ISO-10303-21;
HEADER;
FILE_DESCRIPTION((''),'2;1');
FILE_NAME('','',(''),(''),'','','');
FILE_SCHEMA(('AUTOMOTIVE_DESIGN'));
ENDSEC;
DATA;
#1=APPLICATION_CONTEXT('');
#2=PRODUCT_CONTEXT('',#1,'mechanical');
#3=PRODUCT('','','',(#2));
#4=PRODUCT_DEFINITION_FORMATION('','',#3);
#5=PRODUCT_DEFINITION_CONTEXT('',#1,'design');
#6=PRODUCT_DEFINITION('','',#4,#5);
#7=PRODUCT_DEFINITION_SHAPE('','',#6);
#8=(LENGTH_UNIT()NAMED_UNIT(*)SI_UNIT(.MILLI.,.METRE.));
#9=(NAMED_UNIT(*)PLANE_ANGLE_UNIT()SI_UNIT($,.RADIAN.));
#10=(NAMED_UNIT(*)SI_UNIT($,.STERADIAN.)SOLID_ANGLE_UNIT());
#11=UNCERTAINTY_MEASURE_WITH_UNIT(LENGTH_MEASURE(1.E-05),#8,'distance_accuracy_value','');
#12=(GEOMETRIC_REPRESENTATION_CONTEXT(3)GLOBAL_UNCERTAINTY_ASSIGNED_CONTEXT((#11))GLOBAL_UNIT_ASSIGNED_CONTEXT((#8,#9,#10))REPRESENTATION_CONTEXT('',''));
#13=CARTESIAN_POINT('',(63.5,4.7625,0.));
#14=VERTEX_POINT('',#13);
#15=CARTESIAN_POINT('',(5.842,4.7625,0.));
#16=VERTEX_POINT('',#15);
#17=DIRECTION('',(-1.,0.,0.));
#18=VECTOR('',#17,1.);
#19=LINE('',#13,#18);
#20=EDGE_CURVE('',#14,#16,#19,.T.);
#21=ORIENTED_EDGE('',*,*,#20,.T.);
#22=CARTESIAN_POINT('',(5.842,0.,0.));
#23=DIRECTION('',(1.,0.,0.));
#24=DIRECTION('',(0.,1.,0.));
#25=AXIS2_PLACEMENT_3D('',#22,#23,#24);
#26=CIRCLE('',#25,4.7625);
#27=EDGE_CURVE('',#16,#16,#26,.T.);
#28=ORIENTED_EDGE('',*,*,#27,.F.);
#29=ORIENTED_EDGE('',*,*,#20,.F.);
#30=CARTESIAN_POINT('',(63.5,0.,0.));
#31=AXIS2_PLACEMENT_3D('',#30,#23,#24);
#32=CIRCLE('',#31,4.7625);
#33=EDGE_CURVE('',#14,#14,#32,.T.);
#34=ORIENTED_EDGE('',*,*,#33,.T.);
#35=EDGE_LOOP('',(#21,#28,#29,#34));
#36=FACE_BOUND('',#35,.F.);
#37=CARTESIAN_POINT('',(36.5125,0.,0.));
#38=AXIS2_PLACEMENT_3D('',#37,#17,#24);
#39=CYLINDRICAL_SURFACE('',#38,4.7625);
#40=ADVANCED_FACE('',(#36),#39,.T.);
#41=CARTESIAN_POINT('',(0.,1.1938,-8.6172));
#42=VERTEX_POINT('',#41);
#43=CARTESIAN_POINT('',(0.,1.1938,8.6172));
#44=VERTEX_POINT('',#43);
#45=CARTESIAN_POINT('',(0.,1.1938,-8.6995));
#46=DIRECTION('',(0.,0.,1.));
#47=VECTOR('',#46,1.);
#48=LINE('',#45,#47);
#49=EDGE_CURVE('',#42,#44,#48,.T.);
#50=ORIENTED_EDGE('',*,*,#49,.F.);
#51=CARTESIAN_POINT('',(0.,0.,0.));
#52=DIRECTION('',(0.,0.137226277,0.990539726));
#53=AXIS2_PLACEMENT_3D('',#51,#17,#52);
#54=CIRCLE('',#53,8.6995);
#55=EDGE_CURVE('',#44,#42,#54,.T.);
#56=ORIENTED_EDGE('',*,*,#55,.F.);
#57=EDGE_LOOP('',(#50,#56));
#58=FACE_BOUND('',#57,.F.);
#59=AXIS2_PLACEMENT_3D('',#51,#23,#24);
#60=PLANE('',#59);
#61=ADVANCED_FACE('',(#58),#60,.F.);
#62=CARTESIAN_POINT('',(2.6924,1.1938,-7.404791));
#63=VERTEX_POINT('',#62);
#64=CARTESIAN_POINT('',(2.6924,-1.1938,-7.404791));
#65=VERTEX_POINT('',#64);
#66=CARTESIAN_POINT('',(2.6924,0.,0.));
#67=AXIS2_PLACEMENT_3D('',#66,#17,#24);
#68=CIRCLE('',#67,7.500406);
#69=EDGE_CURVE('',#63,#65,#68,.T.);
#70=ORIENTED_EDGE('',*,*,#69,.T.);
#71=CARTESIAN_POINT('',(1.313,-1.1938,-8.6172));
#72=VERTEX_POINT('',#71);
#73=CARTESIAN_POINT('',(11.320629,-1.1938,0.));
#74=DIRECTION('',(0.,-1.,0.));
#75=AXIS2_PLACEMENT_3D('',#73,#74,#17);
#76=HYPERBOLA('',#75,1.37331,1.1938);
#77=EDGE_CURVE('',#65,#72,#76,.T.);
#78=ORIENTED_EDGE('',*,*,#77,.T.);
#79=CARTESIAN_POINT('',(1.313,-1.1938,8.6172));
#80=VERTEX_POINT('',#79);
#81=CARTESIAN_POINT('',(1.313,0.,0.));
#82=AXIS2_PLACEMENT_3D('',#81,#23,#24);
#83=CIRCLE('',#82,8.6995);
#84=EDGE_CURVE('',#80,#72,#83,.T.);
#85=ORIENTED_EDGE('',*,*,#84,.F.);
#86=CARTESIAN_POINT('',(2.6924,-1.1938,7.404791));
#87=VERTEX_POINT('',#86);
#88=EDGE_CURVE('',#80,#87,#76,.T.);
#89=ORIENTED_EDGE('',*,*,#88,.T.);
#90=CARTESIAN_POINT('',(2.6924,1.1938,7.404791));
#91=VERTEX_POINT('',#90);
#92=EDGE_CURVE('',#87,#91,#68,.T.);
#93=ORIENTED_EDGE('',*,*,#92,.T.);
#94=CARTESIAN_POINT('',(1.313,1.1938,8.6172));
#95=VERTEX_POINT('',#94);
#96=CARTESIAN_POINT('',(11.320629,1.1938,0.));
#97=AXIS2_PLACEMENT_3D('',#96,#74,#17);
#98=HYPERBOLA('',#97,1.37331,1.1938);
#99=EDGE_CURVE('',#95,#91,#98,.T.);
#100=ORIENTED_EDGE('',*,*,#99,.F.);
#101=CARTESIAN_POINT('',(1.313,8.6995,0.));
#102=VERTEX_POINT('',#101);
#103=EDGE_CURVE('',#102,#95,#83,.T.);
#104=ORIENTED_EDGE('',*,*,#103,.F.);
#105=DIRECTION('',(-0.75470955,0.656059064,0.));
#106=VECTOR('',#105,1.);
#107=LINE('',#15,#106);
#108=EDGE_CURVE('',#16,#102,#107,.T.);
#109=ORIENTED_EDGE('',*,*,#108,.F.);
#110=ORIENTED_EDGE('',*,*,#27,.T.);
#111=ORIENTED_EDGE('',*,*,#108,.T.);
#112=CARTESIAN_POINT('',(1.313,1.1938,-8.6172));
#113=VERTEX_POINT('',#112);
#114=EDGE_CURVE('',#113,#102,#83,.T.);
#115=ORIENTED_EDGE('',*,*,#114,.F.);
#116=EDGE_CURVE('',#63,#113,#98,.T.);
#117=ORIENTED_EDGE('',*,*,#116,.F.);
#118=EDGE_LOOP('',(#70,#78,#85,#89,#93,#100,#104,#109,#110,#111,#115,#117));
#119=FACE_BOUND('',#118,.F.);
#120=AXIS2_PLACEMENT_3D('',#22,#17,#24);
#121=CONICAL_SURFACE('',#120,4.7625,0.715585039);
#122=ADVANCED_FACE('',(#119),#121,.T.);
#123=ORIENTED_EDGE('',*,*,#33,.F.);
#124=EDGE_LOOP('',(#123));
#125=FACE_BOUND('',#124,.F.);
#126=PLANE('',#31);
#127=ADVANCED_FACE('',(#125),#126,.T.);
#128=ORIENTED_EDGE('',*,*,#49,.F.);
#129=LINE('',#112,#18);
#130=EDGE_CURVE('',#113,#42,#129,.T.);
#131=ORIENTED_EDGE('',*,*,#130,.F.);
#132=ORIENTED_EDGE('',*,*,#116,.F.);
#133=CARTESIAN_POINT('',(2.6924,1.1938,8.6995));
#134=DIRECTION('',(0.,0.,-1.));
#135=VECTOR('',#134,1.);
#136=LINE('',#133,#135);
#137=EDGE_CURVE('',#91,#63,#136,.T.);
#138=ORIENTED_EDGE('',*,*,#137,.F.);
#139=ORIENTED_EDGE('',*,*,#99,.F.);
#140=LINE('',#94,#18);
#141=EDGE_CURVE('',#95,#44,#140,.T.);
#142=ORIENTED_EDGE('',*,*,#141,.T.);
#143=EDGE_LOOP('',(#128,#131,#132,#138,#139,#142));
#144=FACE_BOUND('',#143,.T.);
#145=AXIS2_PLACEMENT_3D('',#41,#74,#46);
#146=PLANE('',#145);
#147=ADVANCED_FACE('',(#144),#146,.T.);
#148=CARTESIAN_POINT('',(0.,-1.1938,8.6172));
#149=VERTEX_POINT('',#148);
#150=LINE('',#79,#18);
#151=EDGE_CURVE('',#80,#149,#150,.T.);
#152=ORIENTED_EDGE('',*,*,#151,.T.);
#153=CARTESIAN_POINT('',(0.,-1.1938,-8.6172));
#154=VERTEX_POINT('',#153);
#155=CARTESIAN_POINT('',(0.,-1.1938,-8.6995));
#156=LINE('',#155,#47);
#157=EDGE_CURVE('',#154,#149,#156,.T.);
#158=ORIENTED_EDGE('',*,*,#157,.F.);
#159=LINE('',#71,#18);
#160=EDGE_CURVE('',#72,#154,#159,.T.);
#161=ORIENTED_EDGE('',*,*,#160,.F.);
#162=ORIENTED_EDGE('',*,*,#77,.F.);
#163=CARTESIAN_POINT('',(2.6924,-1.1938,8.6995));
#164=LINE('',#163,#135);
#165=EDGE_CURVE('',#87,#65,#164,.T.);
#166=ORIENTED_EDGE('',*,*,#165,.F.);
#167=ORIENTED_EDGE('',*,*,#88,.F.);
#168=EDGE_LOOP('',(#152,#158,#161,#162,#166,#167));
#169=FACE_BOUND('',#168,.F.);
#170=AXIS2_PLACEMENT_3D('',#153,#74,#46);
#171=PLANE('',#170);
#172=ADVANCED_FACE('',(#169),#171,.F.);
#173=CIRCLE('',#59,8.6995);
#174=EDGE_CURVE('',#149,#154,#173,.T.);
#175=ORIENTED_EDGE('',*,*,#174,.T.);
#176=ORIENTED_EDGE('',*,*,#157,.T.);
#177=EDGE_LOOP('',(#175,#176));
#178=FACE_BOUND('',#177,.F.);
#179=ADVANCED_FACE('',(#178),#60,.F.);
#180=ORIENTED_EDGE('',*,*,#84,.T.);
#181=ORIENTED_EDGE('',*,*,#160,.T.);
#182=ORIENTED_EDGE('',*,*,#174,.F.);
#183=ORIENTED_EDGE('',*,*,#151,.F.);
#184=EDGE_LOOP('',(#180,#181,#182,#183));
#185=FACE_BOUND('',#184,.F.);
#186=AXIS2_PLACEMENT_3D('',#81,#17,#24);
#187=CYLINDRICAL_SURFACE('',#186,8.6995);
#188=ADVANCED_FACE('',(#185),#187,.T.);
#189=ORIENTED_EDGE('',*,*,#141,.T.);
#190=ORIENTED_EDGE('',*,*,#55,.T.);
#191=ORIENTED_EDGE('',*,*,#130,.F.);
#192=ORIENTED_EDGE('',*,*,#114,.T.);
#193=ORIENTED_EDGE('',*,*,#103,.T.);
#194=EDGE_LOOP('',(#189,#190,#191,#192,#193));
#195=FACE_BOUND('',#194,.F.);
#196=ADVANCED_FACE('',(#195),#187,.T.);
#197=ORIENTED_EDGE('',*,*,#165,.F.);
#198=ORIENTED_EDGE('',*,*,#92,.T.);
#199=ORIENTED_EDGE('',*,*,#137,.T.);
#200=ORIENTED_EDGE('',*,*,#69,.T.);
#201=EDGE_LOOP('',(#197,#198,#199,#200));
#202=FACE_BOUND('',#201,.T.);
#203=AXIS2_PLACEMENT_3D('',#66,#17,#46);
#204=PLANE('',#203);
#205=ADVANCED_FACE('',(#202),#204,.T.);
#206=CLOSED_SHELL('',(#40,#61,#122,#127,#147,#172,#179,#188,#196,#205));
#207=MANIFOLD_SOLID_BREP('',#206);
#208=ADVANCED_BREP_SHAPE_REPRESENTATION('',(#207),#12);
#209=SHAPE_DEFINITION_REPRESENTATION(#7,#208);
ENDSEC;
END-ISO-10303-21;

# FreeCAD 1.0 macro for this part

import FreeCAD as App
import Part
import Sketcher
Q = App.Units.Quantity

doc = App.newDocument("Part")
body = doc.addObject("PartDesign::Body", "Body")

sketch1 = doc.addObject("Sketcher::SketchObject", "Sketch")
body.addObject(sketch1)
sketch1.AttachmentSupport = (doc.XY_Plane, [""])
sketch1.MapMode = "FlatFace"
sketch1.addGeometry([
    Part.LineSegment(App.Vector(0, 8.7, 0), App.Vector(0, 0, 0)),
    Part.LineSegment(App.Vector(0, 0, 0), App.Vector(63.5, 0, 0)),
    Part.LineSegment(App.Vector(63.5, 0, 0), App.Vector(63.5, 4.8, 0)),
    Part.LineSegment(App.Vector(63.5, 4.8, 0), App.Vector(5.8, 4.8, 0)),
    Part.LineSegment(App.Vector(5.8, 4.8, 0), App.Vector(1.3, 8.7, 0)),
    Part.LineSegment(App.Vector(1.3, 8.7, 0), App.Vector(0, 8.7, 0)),
], False)
sketch1.addConstraint([
    Sketcher.Constraint("Coincident", 0, 2, 1, 1),
    Sketcher.Constraint("Coincident", 1, 2, 2, 1),
    Sketcher.Constraint("Coincident", 2, 2, 3, 1),
    Sketcher.Constraint("Coincident", 3, 2, 4, 1),
    Sketcher.Constraint("Coincident", 4, 2, 5, 1),
    Sketcher.Constraint("Coincident", 5, 2, 0, 1),
    Sketcher.Constraint("Vertical", 0),
    Sketcher.Constraint("Horizontal", 1),
    Sketcher.Constraint("Vertical", 2),
    Sketcher.Constraint("Horizontal", 3),
    Sketcher.Constraint("Horizontal", 5),
    Sketcher.Constraint("Coincident", 0, 2, -1, 1),
    Sketcher.Constraint("DistanceX", 1, 1, 1, 2, Q("2.5 in")),
    Sketcher.Constraint("DistanceX", -1, 1, 3, 2, Q("0.23 in")),
    Sketcher.Constraint("Angle", 4, Q("139 deg")),
    Sketcher.Constraint("DistanceY", 2, 1, 2, 2, Q("0.1875 in")),
    Sketcher.Constraint("DistanceX", 5, 2, 5, 1, Q("0.0517 in")),
])
revolution = doc.addObject("PartDesign::Revolution", "Revolution")
body.addObject(revolution)
revolution.Profile = sketch1
revolution.ReferenceAxis = (sketch1, ["H_Axis"])
revolution.Angle = 360

sketch2 = doc.addObject("Sketcher::SketchObject", "Sketch001")
body.addObject(sketch2)
sketch2.AttachmentSupport = (doc.YZ_Plane, [""])
sketch2.MapMode = "FlatFace"
sketch2.addGeometry([
    Part.LineSegment(App.Vector(1.2, -8.7, 0), App.Vector(-1.2, -8.7, 0)),
    Part.LineSegment(App.Vector(-1.2, -8.7, 0), App.Vector(-1.2, 8.7, 0)),
    Part.LineSegment(App.Vector(-1.2, 8.7, 0), App.Vector(1.2, 8.7, 0)),
    Part.LineSegment(App.Vector(1.2, 8.7, 0), App.Vector(1.2, -8.7, 0)),
], False)
sketch2.addConstraint([
    Sketcher.Constraint("Coincident", 0, 2, 1, 1),
    Sketcher.Constraint("Coincident", 1, 2, 2, 1),
    Sketcher.Constraint("Coincident", 2, 2, 3, 1),
    Sketcher.Constraint("Coincident", 3, 2, 0, 1),
    Sketcher.Constraint("Horizontal", 0),
    Sketcher.Constraint("Vertical", 1),
    Sketcher.Constraint("Horizontal", 2),
    Sketcher.Constraint("Vertical", 3),
    Sketcher.Constraint("Symmetric", 0, 2, 2, 2, -1, 1),
    Sketcher.Constraint("DistanceX", 0, 2, 0, 1, Q("0.094 in")),
    Sketcher.Constraint("DistanceY", 1, 1, 1, 2, Q("0.685 in")),
])
pocket1 = doc.addObject("PartDesign::Pocket", "Pocket")
body.addObject(pocket1)
pocket1.Profile = sketch2
pocket1.Length = Q("0.106 in")
pocket1.Reversed = True

doc.recompute()
